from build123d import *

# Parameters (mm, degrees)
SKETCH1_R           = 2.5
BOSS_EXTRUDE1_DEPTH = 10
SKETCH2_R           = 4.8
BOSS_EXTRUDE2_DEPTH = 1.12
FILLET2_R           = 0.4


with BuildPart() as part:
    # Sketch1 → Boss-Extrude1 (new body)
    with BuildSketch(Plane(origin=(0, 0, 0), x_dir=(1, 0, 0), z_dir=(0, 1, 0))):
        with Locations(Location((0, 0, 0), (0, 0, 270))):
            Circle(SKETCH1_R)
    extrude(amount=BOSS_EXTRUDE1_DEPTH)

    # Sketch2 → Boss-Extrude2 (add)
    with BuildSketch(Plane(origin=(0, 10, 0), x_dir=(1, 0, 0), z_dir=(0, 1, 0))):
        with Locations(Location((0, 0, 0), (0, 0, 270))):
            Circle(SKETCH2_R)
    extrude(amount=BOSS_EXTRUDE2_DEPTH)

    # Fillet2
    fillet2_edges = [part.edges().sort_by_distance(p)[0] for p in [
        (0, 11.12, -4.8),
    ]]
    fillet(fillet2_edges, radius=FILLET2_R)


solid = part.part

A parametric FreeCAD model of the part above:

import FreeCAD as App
import Part
import Sketcher
Q = App.Units.Quantity


def edges_at(feature, points):
    """Names of the edges that pass closest to the given points."""
    edges = feature.Shape.Edges
    near = lambda p: min(range(len(edges)), key=lambda i: edges[i].distToShape(Part.Vertex(*p))[0])
    return sorted({f"Edge{near(p) + 1}" for p in points})

doc = App.newDocument("Part")
body = doc.addObject("PartDesign::Body", "Body")

# Sketch on XZ plane
sketch1 = body.newObject("Sketcher::SketchObject", "Sketch")
sketch1.AttachmentSupport = (doc.getObject("XZ_Plane"), [""])
sketch1.MapMode = "FlatFace"
sketch1.addGeometry(Part.Circle(App.Vector(0, 0, 0), App.Vector(0, 0, 1), 2.5), False)
sketch1.addConstraint([
    Sketcher.Constraint("Coincident", 0, 3, -1, 1),
    Sketcher.Constraint("Diameter", 0, Q("5 mm")),
])
pad1 = body.newObject("PartDesign::Pad", "Pad")
pad1.Profile = sketch1
pad1.Length = 10
pad1.Reversed = True

# Sketch on XZ plane
sketch2 = body.newObject("Sketcher::SketchObject", "Sketch001")
sketch2.AttachmentSupport = (doc.getObject("XZ_Plane"), [""])
sketch2.MapMode = "FlatFace"
sketch2.AttachmentOffset = App.Placement(App.Vector(0, 0, -10), App.Rotation())
sketch2.addGeometry(Part.Circle(App.Vector(0, 0, 0), App.Vector(0, 0, 1), 4.8), False)
sketch2.addConstraint([
    Sketcher.Constraint("Coincident", 0, 3, -1, 1),
    Sketcher.Constraint("Diameter", 0, Q("9.6 mm")),
])
pad2 = body.newObject("PartDesign::Pad", "Pad001")
pad2.Profile = sketch2
pad2.Length = 1.12
pad2.Reversed = True
doc.recompute()

fillet = body.newObject("PartDesign::Fillet", "Fillet")
fillet.Base = (pad2, edges_at(pad2, [(0, 11.12, -4.8)]))
fillet.Radius = 0.4

doc.recompute()
